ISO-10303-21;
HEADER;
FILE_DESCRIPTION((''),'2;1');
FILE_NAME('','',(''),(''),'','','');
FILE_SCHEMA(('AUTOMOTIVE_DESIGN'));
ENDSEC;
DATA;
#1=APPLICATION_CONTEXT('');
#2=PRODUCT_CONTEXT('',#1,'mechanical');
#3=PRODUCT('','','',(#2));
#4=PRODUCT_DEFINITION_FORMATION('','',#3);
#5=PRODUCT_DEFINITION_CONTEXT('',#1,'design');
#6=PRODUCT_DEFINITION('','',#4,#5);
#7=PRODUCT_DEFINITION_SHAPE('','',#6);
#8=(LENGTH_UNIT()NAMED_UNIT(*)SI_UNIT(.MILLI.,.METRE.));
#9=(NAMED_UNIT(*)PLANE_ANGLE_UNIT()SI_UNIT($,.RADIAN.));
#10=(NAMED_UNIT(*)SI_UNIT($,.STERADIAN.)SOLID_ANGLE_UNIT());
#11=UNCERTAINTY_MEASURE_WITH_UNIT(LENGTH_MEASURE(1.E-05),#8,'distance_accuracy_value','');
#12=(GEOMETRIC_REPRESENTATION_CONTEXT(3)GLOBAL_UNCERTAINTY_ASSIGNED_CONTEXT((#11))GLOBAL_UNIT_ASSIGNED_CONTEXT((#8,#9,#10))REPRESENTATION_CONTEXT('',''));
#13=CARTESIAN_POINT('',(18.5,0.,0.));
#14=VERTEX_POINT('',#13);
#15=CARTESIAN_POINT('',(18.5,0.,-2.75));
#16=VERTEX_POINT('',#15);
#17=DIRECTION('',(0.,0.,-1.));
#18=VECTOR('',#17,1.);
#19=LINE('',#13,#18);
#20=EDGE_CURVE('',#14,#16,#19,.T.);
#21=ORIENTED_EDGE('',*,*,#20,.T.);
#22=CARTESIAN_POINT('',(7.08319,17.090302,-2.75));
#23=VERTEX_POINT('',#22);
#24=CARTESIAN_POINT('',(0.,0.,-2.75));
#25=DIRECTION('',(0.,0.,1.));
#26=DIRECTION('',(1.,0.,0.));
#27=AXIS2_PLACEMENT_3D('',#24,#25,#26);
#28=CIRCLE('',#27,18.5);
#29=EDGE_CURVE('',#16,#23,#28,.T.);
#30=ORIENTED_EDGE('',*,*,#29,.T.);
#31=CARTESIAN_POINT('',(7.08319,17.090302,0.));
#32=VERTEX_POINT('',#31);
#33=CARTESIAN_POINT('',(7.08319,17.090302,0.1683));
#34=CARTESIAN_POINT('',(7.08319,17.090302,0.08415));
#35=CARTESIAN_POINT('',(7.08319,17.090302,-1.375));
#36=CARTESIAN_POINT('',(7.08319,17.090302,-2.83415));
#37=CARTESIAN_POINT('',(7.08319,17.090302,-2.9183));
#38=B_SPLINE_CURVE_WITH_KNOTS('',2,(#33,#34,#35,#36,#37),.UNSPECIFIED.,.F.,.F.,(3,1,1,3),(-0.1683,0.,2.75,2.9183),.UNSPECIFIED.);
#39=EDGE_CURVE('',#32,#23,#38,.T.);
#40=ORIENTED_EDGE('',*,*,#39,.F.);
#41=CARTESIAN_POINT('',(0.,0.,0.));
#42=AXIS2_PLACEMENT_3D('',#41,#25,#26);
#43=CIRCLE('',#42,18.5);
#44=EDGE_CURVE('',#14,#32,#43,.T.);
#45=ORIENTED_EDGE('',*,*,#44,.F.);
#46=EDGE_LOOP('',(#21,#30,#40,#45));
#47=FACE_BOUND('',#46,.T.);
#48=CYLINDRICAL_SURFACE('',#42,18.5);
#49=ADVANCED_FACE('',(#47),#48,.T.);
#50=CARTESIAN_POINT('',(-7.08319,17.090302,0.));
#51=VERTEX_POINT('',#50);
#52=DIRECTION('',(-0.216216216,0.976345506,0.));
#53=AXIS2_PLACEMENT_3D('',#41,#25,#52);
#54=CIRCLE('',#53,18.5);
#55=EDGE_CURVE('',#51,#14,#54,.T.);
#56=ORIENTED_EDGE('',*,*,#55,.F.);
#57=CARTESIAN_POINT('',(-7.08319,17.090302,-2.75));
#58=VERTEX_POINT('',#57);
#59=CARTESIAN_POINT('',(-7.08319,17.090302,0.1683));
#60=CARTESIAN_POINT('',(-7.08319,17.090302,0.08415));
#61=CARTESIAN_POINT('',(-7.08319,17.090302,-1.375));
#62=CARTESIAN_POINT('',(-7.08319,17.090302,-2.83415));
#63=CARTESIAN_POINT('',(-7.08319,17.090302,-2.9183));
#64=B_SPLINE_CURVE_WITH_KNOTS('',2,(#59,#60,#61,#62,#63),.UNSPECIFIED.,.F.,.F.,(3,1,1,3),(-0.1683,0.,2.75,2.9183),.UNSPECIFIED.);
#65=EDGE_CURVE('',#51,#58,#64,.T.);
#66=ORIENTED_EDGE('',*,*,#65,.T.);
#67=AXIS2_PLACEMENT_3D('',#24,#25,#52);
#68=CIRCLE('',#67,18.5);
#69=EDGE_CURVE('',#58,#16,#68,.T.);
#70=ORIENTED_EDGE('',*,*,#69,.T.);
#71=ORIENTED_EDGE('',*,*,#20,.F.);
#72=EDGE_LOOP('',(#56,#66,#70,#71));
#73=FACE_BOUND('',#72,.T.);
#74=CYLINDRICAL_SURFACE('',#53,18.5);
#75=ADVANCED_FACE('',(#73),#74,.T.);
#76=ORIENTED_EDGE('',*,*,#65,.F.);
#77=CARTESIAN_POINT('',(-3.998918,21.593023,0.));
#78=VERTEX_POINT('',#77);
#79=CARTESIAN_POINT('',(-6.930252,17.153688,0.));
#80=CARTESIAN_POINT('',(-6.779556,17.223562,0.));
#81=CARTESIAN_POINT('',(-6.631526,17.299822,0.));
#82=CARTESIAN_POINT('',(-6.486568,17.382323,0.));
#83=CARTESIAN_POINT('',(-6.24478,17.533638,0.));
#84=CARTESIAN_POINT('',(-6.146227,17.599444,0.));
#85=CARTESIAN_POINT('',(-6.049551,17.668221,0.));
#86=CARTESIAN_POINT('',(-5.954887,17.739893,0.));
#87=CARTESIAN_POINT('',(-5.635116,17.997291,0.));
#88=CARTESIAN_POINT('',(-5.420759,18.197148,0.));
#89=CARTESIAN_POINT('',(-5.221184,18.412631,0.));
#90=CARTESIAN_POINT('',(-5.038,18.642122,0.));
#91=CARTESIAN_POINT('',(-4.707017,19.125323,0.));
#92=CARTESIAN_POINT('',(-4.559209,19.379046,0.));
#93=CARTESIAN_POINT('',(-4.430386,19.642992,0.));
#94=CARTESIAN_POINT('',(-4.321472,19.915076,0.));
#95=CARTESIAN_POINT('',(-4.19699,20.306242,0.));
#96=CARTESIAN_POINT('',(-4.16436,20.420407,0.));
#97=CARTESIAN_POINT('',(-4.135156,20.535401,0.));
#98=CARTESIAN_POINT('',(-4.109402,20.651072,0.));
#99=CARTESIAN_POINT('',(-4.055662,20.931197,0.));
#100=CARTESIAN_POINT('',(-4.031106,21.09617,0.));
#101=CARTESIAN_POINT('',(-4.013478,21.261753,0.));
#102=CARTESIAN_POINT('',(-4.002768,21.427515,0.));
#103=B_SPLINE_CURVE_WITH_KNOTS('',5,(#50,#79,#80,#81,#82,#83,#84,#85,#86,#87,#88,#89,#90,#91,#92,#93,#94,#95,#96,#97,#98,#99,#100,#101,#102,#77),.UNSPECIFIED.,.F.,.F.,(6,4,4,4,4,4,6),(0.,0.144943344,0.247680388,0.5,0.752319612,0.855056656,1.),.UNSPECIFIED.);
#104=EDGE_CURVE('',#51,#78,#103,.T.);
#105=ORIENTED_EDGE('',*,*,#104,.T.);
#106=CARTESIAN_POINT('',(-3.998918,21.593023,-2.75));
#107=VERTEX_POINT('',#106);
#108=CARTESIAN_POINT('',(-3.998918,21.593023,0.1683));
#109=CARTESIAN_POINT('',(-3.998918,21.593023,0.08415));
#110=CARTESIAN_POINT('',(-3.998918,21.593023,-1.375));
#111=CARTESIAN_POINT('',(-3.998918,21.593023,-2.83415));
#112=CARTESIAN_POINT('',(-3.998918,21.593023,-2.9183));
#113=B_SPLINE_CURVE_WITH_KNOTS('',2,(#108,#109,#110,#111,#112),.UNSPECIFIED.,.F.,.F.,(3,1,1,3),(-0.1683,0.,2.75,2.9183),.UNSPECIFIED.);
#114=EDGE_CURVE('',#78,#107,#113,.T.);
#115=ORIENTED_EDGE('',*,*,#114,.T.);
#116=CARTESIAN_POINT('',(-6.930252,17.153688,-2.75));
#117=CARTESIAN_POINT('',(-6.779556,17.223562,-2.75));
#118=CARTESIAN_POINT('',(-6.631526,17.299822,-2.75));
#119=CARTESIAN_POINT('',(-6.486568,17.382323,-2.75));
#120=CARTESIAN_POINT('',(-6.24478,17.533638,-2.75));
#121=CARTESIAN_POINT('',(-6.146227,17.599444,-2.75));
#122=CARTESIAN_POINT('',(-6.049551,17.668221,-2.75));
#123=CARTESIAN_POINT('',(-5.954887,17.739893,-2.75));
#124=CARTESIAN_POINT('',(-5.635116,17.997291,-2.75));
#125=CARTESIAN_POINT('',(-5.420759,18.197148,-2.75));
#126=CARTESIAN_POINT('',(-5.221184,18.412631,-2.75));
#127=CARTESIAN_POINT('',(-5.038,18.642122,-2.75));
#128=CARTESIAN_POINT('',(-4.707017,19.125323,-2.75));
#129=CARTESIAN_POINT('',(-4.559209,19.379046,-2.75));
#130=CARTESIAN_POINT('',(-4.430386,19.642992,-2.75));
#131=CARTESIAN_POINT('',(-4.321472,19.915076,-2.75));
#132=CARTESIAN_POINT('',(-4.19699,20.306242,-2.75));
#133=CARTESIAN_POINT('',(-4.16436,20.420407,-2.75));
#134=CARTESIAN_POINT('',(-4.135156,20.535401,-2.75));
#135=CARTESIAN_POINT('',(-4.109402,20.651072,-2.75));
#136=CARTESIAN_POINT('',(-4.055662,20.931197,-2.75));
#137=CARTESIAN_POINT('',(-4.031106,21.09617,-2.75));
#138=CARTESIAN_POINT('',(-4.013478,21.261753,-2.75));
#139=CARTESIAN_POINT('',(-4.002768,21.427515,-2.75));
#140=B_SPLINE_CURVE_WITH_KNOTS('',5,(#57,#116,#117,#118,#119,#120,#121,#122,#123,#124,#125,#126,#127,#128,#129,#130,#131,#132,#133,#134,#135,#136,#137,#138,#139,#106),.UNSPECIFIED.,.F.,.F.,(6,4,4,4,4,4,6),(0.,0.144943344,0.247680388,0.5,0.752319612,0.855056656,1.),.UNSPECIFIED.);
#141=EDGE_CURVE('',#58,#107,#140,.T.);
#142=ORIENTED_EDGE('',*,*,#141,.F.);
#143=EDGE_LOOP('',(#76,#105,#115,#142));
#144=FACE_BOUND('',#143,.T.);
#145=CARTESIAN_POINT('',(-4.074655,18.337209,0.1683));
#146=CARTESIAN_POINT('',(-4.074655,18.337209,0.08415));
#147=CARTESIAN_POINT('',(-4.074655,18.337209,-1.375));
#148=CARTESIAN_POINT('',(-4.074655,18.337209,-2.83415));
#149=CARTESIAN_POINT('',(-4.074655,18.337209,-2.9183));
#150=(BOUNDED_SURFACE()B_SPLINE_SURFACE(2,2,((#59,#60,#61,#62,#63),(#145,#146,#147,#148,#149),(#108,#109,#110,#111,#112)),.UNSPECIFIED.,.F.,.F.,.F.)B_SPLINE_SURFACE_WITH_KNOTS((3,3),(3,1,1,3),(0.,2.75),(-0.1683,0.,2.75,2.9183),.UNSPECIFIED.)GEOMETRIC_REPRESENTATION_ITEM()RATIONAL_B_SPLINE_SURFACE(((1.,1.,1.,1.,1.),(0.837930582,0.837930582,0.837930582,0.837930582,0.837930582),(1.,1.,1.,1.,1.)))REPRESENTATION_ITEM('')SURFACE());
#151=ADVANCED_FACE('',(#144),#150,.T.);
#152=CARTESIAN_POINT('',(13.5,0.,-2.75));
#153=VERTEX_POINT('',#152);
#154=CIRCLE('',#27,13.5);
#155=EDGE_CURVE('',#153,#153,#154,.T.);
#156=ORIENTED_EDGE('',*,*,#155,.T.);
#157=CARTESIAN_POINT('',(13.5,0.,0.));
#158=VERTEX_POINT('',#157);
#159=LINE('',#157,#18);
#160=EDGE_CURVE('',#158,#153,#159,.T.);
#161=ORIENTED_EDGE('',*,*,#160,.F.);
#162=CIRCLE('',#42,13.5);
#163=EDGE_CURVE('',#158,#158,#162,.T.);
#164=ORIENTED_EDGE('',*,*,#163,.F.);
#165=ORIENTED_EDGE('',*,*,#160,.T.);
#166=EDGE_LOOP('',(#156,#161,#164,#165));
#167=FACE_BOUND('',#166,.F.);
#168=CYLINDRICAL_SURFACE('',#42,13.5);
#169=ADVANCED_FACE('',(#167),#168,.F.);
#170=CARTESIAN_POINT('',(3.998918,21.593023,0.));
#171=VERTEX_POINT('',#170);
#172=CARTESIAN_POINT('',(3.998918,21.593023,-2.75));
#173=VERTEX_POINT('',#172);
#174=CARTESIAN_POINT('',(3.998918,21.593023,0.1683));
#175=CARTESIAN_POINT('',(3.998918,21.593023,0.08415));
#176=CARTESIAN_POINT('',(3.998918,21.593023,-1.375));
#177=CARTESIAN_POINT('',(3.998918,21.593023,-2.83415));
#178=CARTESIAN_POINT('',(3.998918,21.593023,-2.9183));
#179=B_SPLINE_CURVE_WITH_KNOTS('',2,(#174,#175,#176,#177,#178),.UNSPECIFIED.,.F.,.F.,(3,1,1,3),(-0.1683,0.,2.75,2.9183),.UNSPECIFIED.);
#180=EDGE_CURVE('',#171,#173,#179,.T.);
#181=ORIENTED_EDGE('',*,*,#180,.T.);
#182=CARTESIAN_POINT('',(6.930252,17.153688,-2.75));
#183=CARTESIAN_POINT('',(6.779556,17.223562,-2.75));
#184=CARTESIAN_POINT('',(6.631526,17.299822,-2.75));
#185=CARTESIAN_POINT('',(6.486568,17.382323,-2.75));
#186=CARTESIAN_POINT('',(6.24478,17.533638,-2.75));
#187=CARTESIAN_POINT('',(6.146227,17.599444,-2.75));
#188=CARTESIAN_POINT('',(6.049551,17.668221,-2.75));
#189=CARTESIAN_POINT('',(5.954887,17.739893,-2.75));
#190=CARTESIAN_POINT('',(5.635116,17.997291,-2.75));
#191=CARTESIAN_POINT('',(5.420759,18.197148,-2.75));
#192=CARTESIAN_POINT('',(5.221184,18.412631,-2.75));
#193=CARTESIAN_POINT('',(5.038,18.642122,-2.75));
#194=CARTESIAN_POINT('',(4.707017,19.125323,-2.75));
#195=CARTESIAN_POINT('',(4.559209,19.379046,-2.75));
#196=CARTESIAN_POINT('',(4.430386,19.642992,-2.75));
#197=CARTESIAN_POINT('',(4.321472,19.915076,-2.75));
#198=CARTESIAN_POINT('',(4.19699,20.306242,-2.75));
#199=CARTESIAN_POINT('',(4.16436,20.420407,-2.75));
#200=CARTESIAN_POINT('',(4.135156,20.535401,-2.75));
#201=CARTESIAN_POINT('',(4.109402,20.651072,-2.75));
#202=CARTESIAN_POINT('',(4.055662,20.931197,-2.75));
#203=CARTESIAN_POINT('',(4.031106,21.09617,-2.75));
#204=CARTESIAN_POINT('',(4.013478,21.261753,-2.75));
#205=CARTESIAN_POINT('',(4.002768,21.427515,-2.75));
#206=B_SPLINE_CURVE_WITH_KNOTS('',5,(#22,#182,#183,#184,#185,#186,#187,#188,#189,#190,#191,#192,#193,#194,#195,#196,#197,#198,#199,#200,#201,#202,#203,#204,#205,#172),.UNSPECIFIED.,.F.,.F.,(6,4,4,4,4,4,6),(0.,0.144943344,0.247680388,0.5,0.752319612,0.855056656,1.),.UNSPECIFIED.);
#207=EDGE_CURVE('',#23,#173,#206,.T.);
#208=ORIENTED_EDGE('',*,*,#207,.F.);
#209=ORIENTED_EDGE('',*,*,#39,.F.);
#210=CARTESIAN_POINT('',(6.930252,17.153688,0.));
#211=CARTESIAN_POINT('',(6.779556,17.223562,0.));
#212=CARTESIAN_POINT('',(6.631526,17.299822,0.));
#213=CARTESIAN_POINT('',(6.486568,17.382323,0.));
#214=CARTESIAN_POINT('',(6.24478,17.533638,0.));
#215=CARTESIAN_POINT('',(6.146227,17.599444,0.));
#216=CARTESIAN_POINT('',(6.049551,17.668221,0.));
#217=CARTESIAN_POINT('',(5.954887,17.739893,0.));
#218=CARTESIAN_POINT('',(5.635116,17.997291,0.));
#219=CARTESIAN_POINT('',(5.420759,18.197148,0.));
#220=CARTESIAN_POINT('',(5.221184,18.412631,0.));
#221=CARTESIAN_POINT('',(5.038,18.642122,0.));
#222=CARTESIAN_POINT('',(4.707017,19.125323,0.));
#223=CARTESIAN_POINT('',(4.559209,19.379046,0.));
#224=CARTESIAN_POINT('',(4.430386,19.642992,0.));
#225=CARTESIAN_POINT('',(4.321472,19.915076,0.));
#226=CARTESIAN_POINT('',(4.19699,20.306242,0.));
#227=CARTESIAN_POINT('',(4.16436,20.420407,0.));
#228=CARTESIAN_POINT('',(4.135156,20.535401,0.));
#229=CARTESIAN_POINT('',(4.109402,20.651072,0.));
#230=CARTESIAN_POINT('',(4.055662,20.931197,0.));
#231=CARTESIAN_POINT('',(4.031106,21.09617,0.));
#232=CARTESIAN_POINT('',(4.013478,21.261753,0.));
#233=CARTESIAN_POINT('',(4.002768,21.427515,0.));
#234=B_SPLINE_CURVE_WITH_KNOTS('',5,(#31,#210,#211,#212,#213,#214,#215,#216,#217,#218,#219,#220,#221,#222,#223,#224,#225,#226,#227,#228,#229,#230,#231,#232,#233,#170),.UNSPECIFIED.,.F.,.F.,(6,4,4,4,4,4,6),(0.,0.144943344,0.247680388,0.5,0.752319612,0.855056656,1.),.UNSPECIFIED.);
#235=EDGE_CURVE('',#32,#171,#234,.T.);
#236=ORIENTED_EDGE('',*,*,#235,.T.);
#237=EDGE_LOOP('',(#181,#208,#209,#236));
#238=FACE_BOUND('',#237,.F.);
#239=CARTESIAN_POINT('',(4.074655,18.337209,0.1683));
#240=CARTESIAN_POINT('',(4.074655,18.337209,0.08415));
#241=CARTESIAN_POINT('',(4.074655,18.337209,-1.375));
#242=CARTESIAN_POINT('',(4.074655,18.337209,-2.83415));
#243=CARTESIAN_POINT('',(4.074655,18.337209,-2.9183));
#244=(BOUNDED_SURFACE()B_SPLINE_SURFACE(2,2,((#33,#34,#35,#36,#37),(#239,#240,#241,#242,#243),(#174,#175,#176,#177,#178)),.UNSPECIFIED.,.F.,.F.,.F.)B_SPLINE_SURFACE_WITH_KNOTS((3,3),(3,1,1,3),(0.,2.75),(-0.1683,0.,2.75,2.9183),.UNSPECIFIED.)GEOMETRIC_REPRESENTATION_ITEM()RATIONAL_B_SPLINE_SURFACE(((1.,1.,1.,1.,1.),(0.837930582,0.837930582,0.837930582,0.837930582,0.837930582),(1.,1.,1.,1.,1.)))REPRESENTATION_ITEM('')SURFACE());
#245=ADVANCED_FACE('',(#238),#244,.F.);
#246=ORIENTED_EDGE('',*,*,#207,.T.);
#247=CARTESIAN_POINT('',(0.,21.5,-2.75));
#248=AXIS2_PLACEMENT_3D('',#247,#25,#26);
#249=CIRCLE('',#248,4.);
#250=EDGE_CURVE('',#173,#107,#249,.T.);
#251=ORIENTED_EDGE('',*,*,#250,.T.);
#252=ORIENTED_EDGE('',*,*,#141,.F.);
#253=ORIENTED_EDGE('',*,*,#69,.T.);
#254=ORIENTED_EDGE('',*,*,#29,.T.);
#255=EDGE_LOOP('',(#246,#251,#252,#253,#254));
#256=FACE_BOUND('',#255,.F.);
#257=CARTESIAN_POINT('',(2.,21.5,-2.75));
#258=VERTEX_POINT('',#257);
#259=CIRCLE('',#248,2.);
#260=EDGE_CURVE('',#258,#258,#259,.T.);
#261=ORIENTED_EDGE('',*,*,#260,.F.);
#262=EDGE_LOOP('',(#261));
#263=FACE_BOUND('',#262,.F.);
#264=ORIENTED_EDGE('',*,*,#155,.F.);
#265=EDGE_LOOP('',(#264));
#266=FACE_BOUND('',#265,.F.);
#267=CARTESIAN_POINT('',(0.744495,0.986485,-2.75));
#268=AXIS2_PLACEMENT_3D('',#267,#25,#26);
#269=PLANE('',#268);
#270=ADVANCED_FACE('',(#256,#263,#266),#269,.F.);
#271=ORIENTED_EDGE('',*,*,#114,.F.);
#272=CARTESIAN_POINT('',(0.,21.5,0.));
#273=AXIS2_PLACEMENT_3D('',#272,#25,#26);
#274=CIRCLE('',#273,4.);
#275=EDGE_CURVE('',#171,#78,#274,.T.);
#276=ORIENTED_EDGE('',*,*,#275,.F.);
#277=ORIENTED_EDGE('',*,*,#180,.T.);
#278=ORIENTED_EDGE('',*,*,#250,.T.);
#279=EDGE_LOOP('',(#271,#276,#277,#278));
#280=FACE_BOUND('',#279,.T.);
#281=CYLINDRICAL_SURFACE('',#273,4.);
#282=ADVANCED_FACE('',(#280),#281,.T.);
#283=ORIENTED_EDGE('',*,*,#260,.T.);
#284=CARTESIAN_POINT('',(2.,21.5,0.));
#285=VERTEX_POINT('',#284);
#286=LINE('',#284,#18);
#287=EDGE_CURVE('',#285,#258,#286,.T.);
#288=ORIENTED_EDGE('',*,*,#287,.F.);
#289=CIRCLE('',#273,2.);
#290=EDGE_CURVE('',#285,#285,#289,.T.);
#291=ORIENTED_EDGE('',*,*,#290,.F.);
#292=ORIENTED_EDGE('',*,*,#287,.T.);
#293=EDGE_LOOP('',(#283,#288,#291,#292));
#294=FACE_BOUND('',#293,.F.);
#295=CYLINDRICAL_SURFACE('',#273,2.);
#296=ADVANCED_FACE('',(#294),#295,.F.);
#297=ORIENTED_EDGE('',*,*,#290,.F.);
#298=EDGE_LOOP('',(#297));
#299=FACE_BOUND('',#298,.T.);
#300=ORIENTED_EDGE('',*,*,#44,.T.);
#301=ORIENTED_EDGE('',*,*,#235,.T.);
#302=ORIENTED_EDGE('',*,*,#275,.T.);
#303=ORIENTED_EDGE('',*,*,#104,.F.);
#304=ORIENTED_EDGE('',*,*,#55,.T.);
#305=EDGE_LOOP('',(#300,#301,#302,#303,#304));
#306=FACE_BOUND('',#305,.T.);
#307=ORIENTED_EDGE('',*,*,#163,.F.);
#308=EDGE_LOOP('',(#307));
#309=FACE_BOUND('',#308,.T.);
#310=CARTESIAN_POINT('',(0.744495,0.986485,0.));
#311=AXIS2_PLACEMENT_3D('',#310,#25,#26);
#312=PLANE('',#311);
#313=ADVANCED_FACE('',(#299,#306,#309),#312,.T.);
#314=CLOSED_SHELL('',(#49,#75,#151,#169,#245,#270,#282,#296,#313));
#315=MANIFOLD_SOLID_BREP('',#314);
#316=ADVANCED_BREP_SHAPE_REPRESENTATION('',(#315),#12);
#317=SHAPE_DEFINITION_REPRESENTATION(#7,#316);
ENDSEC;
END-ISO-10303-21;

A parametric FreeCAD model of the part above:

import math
import FreeCAD as App
import Part
import Sketcher
Q = App.Units.Quantity


def edges_at(feature, points):
    """Names of the edges that pass closest to the given points."""
    edges = feature.Shape.Edges
    near = lambda p: min(range(len(edges)), key=lambda i: edges[i].distToShape(Part.Vertex(*p))[0])
    return sorted({f"Edge{near(p) + 1}" for p in points})

doc = App.newDocument("Part")
body = doc.addObject("PartDesign::Body", "Body")

sketch1 = doc.addObject("Sketcher::SketchObject", "Sketch")
body.addObject(sketch1)
sketch1.AttachmentSupport = (doc.XY_Plane, [""])
sketch1.MapMode = "FlatFace"
sketch1.addGeometry(Part.ArcOfCircle(Part.Circle(App.Vector(0, 0, 0), App.Vector(0, 0, 1), 18.5), math.radians(102), math.radians(360)), False)
sketch1.addGeometry(Part.ArcOfCircle(Part.Circle(App.Vector(0, 0, 0), App.Vector(0, 0, 1), 18.5), math.radians(0), math.radians(78)), False)
sketch1.addGeometry(Part.LineSegment(App.Vector(4, 18.1, 0), App.Vector(4, 21.5, 0)), False)
sketch1.addGeometry(Part.ArcOfCircle(Part.Circle(App.Vector(0, 21.5, 0), App.Vector(0, 0, 1), 4), math.radians(0), math.radians(180)), False)
sketch1.addGeometry(Part.LineSegment(App.Vector(-4, 21.5, 0), App.Vector(-4, 18.1, 0)), False)
sketch1.addGeometry(Part.Circle(App.Vector(0, 0, 0), App.Vector(0, 0, 1), 13.5), False)
sketch1.addGeometry(Part.Circle(App.Vector(0, 21.5, 0), App.Vector(0, 0, 1), 2), False)
sketch1.addConstraint(Sketcher.Constraint("Tangent", 0, 2, 1, 1))
sketch1.addConstraint(Sketcher.Constraint("Coincident", 1, 2, 2, 1))
sketch1.addConstraint(Sketcher.Constraint("Tangent", 2, 2, 3, 1))
sketch1.addConstraint(Sketcher.Constraint("Tangent", 3, 2, 4, 1))
sketch1.addConstraint(Sketcher.Constraint("Coincident", 4, 2, 0, 1))
sketch1.addConstraint(Sketcher.Constraint("Vertical", 2))
sketch1.addConstraint(Sketcher.Constraint("Vertical", 4))
sketch1.addConstraint(Sketcher.Constraint("Coincident", 0, 3, -1, 1))
sketch1.addConstraint(Sketcher.Constraint("Coincident", 5, 3, -1, 1))
sketch1.addConstraint(Sketcher.Constraint("Coincident", 6, 3, 3, 3))
sketch1.addConstraint(Sketcher.Constraint("Equal", 0, 1))
sketch1.addConstraint(Sketcher.Constraint("PointOnObject", 3, 3, -2))
sketch1.addConstraint(Sketcher.Constraint("PointOnObject", 0, 2, -1))
sketch1.addConstraint(Sketcher.Constraint("Diameter", 5, Q("27 mm")))
sketch1.addConstraint(Sketcher.Constraint("Diameter", 6, Q("4 mm")))
sketch1.addConstraint(Sketcher.Constraint("Radius", 3, Q("4 mm")))
sketch1.addConstraint(Sketcher.Constraint("Radius", 0, Q("18.5 mm")))
sketch1.addConstraint(Sketcher.Constraint("DistanceY", -1, 1, 3, 3, Q("21.5 mm")))
pad1 = doc.addObject("PartDesign::Pad", "Pad")
body.addObject(pad1)
pad1.Profile = sketch1
pad1.Length = 2.75
pad1.Reversed = True
doc.recompute()

fillet = doc.addObject("PartDesign::Fillet", "Fillet")
body.addObject(fillet)
fillet.Base = (pad1, edges_at(pad1, [(4, 18.062, -1.375), (-4, 18.062, -1.375)]))
fillet.Radius = 5

doc.recompute()
